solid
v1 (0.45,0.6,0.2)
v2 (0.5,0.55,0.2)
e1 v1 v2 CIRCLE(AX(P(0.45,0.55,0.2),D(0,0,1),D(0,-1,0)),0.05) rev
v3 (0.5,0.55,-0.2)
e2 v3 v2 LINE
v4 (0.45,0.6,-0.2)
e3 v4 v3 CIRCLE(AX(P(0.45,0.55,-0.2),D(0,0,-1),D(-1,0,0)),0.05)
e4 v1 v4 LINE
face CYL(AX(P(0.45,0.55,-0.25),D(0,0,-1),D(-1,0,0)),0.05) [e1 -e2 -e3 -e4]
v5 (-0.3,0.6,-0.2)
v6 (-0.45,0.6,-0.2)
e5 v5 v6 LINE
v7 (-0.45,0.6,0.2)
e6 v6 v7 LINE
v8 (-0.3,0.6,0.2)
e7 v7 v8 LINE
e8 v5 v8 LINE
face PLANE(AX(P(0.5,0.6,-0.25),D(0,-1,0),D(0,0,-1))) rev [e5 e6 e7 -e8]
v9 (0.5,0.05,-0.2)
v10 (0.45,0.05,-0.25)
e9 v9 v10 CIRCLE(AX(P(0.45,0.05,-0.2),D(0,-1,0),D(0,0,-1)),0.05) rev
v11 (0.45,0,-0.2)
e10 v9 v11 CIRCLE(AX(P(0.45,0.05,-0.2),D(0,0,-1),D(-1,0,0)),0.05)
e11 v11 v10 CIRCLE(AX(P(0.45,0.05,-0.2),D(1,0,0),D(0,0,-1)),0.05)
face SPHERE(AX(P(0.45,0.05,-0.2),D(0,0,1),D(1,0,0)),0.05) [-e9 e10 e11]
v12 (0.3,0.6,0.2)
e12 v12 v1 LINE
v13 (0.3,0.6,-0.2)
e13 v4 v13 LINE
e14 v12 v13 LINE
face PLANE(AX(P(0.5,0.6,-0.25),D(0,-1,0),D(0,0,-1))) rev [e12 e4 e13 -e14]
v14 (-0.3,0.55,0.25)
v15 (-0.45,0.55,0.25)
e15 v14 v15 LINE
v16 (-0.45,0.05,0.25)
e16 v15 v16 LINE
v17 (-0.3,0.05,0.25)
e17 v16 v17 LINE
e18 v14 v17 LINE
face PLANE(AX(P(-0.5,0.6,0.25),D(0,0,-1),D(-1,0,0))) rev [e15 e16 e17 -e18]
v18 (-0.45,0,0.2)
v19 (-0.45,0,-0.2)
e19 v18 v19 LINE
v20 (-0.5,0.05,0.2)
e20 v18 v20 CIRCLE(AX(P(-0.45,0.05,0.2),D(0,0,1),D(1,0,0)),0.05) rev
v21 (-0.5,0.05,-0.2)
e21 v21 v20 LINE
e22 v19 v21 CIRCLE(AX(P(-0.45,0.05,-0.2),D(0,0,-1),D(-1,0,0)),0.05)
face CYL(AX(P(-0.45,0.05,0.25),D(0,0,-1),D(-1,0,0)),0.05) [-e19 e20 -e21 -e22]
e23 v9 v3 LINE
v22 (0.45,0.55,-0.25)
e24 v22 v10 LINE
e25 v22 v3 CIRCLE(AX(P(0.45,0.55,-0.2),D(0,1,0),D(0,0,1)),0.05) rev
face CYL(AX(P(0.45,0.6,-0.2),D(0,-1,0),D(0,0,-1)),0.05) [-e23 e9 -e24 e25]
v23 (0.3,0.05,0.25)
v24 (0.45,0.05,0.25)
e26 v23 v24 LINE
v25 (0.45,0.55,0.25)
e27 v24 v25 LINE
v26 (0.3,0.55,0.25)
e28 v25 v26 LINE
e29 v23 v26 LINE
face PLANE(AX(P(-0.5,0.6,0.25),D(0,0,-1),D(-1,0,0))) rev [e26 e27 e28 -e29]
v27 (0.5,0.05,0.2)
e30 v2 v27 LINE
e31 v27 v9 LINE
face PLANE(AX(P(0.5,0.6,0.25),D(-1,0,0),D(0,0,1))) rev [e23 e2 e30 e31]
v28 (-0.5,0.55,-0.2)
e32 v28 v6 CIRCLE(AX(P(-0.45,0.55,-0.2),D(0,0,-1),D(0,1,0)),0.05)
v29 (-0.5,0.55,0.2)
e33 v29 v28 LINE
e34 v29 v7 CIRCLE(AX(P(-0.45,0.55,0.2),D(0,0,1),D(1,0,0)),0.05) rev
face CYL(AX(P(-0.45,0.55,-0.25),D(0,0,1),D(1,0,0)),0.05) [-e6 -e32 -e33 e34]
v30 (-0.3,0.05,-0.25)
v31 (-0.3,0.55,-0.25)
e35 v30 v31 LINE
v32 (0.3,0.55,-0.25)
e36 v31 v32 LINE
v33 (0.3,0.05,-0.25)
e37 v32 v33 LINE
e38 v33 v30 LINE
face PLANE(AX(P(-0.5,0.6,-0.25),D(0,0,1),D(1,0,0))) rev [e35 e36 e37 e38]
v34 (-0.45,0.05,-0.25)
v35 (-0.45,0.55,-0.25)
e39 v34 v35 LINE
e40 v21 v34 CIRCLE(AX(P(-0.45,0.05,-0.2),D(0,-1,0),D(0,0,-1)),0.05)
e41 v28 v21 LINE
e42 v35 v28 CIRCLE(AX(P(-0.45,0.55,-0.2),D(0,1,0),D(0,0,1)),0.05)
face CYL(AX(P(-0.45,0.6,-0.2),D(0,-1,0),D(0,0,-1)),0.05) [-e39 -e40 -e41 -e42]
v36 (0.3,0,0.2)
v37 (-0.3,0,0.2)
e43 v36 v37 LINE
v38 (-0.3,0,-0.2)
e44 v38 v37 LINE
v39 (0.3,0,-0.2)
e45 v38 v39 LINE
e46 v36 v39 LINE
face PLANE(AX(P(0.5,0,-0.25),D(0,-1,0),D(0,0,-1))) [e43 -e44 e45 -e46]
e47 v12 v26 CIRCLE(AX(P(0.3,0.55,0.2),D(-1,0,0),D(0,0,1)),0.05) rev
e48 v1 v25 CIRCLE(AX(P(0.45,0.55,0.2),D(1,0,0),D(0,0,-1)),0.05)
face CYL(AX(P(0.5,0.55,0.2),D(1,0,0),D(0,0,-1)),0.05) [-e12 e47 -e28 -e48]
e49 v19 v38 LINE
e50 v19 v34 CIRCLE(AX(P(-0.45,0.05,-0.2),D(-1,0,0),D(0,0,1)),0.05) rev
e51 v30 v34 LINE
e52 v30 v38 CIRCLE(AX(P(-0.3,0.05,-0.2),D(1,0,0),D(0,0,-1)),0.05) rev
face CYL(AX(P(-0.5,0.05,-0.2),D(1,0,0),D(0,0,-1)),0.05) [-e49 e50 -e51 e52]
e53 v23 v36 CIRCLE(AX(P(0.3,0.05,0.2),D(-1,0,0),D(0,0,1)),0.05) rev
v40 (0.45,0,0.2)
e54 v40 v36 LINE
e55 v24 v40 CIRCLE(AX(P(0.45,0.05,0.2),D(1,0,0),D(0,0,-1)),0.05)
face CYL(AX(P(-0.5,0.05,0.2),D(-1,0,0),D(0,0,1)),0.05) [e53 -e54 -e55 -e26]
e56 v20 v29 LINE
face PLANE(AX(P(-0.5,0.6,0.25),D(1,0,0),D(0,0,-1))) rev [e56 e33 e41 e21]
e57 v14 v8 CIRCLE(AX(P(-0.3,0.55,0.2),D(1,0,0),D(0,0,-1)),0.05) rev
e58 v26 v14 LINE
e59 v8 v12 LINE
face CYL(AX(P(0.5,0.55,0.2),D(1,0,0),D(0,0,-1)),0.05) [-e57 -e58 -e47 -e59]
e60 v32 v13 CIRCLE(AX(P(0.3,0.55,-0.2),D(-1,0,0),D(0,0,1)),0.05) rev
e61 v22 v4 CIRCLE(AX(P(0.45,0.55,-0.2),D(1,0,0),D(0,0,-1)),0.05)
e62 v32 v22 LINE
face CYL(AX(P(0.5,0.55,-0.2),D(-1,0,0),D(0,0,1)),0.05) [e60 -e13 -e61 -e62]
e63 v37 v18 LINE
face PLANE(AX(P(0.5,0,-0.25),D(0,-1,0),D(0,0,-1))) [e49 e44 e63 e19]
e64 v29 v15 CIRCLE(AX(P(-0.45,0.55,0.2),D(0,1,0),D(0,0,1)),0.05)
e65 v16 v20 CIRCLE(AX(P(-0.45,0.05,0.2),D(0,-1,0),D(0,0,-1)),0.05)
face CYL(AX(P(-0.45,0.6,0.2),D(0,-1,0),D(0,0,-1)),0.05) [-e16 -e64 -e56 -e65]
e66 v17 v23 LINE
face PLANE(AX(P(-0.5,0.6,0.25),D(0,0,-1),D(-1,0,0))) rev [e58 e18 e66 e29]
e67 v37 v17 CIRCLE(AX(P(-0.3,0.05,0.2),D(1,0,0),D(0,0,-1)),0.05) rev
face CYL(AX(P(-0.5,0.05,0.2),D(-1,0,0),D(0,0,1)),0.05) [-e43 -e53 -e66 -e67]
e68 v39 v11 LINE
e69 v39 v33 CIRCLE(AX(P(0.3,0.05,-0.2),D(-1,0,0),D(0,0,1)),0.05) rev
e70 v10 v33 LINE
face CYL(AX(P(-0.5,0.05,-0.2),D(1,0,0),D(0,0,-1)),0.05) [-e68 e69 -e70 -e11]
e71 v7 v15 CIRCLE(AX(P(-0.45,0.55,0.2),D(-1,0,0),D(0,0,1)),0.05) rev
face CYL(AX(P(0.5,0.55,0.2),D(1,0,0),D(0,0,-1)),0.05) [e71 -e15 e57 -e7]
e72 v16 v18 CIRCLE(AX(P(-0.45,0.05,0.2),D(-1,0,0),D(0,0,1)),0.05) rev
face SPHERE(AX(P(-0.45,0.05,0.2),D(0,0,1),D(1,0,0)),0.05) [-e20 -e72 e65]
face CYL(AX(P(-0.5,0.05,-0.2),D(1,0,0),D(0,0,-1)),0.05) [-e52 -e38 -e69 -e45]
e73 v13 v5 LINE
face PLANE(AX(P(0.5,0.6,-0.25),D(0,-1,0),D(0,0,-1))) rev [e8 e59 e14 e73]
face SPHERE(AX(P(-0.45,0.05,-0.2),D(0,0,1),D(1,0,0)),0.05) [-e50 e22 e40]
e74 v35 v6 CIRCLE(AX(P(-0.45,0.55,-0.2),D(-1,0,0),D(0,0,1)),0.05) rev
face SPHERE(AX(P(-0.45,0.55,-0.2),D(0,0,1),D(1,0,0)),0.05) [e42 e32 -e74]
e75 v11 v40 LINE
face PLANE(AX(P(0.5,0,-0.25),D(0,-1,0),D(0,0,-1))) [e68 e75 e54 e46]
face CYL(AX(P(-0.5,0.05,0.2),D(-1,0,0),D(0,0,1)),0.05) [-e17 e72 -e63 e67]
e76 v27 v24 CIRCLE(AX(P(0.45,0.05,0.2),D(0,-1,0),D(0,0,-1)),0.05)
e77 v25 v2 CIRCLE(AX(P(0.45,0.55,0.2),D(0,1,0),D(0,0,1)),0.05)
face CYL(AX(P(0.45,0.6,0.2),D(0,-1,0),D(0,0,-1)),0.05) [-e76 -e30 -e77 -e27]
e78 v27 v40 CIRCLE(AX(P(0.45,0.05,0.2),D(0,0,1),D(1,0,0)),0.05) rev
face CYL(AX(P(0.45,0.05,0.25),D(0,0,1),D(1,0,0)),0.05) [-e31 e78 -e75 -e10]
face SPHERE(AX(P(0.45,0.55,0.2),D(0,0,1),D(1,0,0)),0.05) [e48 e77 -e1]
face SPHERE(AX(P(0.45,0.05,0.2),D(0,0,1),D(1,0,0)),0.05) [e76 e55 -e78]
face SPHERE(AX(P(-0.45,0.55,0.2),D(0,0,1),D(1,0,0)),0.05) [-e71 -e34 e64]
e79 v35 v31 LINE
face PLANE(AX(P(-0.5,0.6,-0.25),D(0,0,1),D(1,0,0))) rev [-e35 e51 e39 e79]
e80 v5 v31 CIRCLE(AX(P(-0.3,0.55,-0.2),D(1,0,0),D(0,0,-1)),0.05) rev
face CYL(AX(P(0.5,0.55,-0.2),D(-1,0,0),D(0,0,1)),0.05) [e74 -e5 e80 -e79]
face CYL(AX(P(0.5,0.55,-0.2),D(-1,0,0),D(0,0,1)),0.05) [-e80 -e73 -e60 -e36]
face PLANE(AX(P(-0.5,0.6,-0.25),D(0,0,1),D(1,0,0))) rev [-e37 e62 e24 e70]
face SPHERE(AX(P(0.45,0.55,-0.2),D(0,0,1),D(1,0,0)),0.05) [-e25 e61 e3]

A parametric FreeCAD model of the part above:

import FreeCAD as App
import Part
import Sketcher


def add_polygon(sketch, points):
    """Adds a closed chain of lines whose ends are joined by coincident constraints."""
    first, n = sketch.GeometryCount, len(points)
    for a, b in zip(points, points[1:] + points[:1]):
        sketch.addGeometry(Part.LineSegment(App.Vector(*a, 0), App.Vector(*b, 0)), False)
    for i in range(n):
        sketch.addConstraint(Sketcher.Constraint("Coincident", first + i, 2, first + (i + 1) % n, 1))

doc = App.newDocument("Part")
body = doc.addObject("PartDesign::Body", "Body")

sketch1 = body.newObject("Sketcher::SketchObject", "Sketch")
sketch1.AttachmentSupport = (doc.getObject("XZ_Plane"), [""])
sketch1.MapMode = "FlatFace"
add_polygon(sketch1, [(-0.5, -0.2), (-0.5, 0.2), (0.5, 0.2), (0.5, -0.2)])
sketch1.addConstraint([
    Sketcher.Constraint("Vertical", 0),
    Sketcher.Constraint("Horizontal", 1),
    Sketcher.Constraint("Vertical", 2),
    Sketcher.Constraint("Horizontal", 3),
    Sketcher.Constraint("Symmetric", 0, 2, 2, 2, -1, 1),
    Sketcher.Constraint("DistanceX", 1, 1, 1, 2, 1.0),
    Sketcher.Constraint("DistanceY", 0, 1, 0, 2, 0.5),
])
pad1 = body.newObject("PartDesign::Pad", "Pad")
pad1.Profile = sketch1
pad1.Length = 0.6
pad1.Reversed = True
doc.recompute()

fillet = body.newObject("PartDesign::Fillet", "Fillet")
fillet.Base = (pad1, ["Edge1"])
fillet.UseAllEdges = True
fillet.Radius = 0.05

doc.recompute()
